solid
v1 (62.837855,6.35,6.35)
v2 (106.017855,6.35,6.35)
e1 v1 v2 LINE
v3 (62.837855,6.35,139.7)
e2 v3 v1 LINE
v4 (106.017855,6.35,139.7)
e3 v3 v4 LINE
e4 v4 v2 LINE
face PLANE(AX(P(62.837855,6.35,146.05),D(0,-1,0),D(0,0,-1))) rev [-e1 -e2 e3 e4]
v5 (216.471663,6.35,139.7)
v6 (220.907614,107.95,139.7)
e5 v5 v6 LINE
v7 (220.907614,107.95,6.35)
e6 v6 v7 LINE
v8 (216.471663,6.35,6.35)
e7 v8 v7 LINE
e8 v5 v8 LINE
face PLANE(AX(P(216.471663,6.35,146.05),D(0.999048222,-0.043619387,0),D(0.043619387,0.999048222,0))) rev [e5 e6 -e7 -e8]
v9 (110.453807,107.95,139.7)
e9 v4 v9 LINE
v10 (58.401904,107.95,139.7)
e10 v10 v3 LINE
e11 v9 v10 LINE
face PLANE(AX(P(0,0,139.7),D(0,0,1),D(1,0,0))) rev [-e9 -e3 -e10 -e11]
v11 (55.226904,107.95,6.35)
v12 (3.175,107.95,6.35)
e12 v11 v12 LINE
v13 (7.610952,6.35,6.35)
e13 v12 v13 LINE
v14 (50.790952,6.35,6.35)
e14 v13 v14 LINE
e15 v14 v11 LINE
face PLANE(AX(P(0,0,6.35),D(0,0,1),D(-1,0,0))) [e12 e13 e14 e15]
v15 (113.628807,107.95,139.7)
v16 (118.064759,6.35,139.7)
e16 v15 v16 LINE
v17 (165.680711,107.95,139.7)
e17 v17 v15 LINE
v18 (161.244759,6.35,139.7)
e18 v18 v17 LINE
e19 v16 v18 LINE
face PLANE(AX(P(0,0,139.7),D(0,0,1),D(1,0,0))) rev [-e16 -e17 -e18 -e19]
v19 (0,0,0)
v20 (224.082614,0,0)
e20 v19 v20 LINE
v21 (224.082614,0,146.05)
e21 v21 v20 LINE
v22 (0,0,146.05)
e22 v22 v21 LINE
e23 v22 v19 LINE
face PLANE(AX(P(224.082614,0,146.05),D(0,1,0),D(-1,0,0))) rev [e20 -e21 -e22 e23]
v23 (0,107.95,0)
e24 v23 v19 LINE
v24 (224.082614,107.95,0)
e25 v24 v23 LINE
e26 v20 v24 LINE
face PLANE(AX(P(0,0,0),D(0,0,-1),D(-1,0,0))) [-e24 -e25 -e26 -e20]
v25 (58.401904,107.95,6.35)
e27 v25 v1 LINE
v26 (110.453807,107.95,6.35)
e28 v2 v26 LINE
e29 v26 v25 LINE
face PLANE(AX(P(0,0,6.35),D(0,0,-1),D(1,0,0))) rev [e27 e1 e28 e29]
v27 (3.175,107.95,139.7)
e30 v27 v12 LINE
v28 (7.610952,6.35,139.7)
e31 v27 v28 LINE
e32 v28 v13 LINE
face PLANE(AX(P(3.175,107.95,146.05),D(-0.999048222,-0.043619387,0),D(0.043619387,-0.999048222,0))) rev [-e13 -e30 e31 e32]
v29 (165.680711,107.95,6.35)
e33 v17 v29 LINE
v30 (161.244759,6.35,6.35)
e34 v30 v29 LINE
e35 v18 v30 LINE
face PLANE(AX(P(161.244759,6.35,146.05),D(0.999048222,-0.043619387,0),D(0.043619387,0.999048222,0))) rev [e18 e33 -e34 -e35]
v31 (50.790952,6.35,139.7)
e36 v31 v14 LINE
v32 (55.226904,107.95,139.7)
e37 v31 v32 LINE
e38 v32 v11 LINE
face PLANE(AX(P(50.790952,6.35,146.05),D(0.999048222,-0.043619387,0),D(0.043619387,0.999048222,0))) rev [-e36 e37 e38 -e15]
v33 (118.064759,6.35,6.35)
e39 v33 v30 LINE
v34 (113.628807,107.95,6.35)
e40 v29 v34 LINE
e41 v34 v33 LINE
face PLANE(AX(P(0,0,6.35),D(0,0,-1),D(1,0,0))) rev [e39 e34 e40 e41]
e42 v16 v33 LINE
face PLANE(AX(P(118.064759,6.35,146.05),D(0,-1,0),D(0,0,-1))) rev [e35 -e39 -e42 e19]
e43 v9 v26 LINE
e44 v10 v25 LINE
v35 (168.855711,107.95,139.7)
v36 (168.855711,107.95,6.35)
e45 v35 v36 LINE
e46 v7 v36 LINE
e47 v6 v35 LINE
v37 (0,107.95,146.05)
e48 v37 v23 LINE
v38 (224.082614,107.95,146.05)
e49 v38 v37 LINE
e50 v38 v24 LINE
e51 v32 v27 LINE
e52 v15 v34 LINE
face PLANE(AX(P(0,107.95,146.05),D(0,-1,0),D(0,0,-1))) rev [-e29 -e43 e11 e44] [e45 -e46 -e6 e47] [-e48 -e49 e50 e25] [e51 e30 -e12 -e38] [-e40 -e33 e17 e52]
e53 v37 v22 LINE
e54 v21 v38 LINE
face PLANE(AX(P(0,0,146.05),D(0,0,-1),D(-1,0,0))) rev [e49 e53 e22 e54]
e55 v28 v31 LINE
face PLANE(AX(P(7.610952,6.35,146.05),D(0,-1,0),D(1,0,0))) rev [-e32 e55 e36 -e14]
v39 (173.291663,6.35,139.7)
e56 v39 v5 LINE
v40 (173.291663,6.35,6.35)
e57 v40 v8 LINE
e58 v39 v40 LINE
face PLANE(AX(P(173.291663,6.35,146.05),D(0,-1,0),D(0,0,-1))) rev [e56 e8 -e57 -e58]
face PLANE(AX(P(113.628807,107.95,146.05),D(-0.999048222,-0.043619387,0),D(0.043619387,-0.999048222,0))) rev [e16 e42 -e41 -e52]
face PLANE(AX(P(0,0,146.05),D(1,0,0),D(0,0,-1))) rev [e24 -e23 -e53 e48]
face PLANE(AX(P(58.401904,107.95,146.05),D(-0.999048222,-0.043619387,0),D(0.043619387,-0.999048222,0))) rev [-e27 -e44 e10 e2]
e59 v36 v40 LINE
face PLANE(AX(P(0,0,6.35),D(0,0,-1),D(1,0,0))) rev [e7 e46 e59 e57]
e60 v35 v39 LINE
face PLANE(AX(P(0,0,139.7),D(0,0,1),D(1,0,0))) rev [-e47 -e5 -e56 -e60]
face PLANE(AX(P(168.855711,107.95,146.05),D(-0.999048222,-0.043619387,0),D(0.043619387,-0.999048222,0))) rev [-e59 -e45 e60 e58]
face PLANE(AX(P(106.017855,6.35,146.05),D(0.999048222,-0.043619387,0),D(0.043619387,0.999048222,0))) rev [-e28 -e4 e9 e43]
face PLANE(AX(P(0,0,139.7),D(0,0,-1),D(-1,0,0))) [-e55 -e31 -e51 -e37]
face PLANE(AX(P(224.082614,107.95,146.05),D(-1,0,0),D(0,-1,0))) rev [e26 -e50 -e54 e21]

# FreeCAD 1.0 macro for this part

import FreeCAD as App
import Part
import Sketcher

V = App.Vector
Q = App.Units.Quantity


def add_polygon(sketch, points):
    """Adds a closed chain of lines whose ends are joined by coincident constraints."""
    first, n = sketch.GeometryCount, len(points)
    for a, b in zip(points, points[1:] + points[:1]):
        sketch.addGeometry(Part.LineSegment(App.Vector(*a, 0), App.Vector(*b, 0)), False)
    for i in range(n):
        sketch.addConstraint(Sketcher.Constraint("Coincident", first + i, 2, first + (i + 1) % n, 1))

doc = App.newDocument("Part")
body = doc.addObject("PartDesign::Body", "Body")

# Sketch on XY plane
sketch1 = body.newObject("Sketcher::SketchObject", "Sketch")
sketch1.AttachmentSupport = (doc.getObject("XY_Plane"), [""])
sketch1.MapMode = "FlatFace"
add_polygon(sketch1, [(0, 108), (0, 0), (224.1, 0), (224.1, 108), (220.9, 108), (216.5, 6.3), (173.3, 6.3), (168.9, 108), (165.7, 108), (161.2, 6.3), (118.1, 6.3), (113.6, 108), (110.5, 108), (106, 6.3), (62.8, 6.3), (58.4, 108), (55.2, 108), (50.8, 6.3), (7.6, 6.3), (3.2, 108)])  # lines 0-19
sketch1.addConstraint(Sketcher.Constraint("Vertical", 0))
sketch1.addConstraint(Sketcher.Constraint("Horizontal", 1))
sketch1.addConstraint(Sketcher.Constraint("Vertical", 2))
sketch1.addConstraint(Sketcher.Constraint("Horizontal", 3))
sketch1.addConstraint(Sketcher.Constraint("Horizontal", 5))
sketch1.addConstraint(Sketcher.Constraint("Horizontal", 7))
sketch1.addConstraint(Sketcher.Constraint("Horizontal", 9))
sketch1.addConstraint(Sketcher.Constraint("Horizontal", 11))
sketch1.addConstraint(Sketcher.Constraint("Horizontal", 13))
sketch1.addConstraint(Sketcher.Constraint("Horizontal", 15))
sketch1.addConstraint(Sketcher.Constraint("Horizontal", 17))
sketch1.addConstraint(Sketcher.Constraint("Horizontal", 19))
sketch1.addConstraint(Sketcher.Constraint("Coincident", 0, 2, -1, 1))
sketch1.addConstraint(Sketcher.Constraint("Parallel", 4, 8))
sketch1.addConstraint(Sketcher.Constraint("Parallel", 6, 10))
sketch1.addConstraint(Sketcher.Constraint("Parallel", 8, 12))
sketch1.addConstraint(Sketcher.Constraint("Parallel", 10, 14))
sketch1.addConstraint(Sketcher.Constraint("Parallel", 12, 16))
sketch1.addConstraint(Sketcher.Constraint("Parallel", 14, 18))
sketch1.addConstraint(Sketcher.Constraint("Horizontal", 3, 2, 6, 2))
sketch1.addConstraint(Sketcher.Constraint("Horizontal", 5, 2, 8, 2))
sketch1.addConstraint(Sketcher.Constraint("Horizontal", 7, 2, 10, 2))
sketch1.addConstraint(Sketcher.Constraint("Horizontal", 9, 2, 12, 2))
sketch1.addConstraint(Sketcher.Constraint("Horizontal", 11, 2, 14, 2))
sketch1.addConstraint(Sketcher.Constraint("Horizontal", 13, 2, 16, 2))
sketch1.addConstraint(Sketcher.Constraint("Horizontal", 15, 2, 18, 2))
sketch1.addConstraint(Sketcher.Constraint("Equal", 3, 7))
sketch1.addConstraint(Sketcher.Constraint("Equal", 5, 9))
sketch1.addConstraint(Sketcher.Constraint("Equal", 7, 11))
sketch1.addConstraint(Sketcher.Constraint("Equal", 9, 13))
sketch1.addConstraint(Sketcher.Constraint("Equal", 11, 15))
sketch1.addConstraint(Sketcher.Constraint("Equal", 13, 17))
sketch1.addConstraint(Sketcher.Constraint("Equal", 15, 19))
sketch1.addConstraint(Sketcher.Constraint("Equal", 4, 6))
sketch1.addConstraint(Sketcher.Constraint("DistanceX", 5, 2, 5, 1, Q("1.7 in")))
sketch1.addConstraint(Sketcher.Constraint("DistanceY", 4, 2, 3, 2, Q("4 in")))
sketch1.addConstraint(Sketcher.Constraint("DistanceY", 0, 2, 0, 1, Q("4.25 in")))
sketch1.addConstraint(Sketcher.Constraint("Angle", 4, Q("-92.5 deg")))
sketch1.addConstraint(Sketcher.Constraint("DistanceX", 3, 2, 3, 1, Q("0.125 in")))
pad1 = body.newObject("PartDesign::Pad", "Pad")
pad1.Profile = sketch1
pad1.Length = Q("5.75 in")

# Sketch on XY plane
sketch2 = body.newObject("Sketcher::SketchObject", "Sketch001")
sketch2.AttachmentSupport = (doc.getObject("XY_Plane"), [""])
sketch2.MapMode = "FlatFace"
sketch2.AttachmentOffset = App.Placement(V(0, 0, 5.75 * 25.4), App.Rotation())
add_polygon(sketch2, [(55, 108), (3, 108), (8, 6), (51, 6)])  # lines 0-3
add_polygon(sketch2, [(58, 108), (63, 6), (106, 6), (110, 108)])  # lines 4-7
add_polygon(sketch2, [(114, 108), (118, 6), (161, 6), (166, 108)])  # lines 8-11
add_polygon(sketch2, [(169, 108), (173, 6), (216, 6), (221, 108)])  # lines 12-15
sketch2.addConstraint(Sketcher.Constraint("Horizontal", 0))
sketch2.addConstraint(Sketcher.Constraint("Horizontal", 2))
sketch2.addConstraint(Sketcher.Constraint("Horizontal", 5))
sketch2.addConstraint(Sketcher.Constraint("Horizontal", 7))
sketch2.addConstraint(Sketcher.Constraint("Horizontal", 9))
sketch2.addConstraint(Sketcher.Constraint("Horizontal", 11))
sketch2.addConstraint(Sketcher.Constraint("Horizontal", 13))
sketch2.addConstraint(Sketcher.Constraint("Horizontal", 15))
sketch2.addConstraint(Sketcher.Constraint("Parallel", 1, 4))
sketch2.addConstraint(Sketcher.Constraint("Parallel", 3, 6))
sketch2.addConstraint(Sketcher.Constraint("Parallel", 4, 8))
sketch2.addConstraint(Sketcher.Constraint("Parallel", 6, 10))
sketch2.addConstraint(Sketcher.Constraint("Parallel", 8, 12))
sketch2.addConstraint(Sketcher.Constraint("Parallel", 10, 14))
sketch2.addConstraint(Sketcher.Constraint("Horizontal", 2, 2, 4, 2))
sketch2.addConstraint(Sketcher.Constraint("Horizontal", 3, 2, 6, 2))
sketch2.addConstraint(Sketcher.Constraint("Horizontal", 5, 2, 8, 2))
sketch2.addConstraint(Sketcher.Constraint("Horizontal", 7, 2, 10, 2))
sketch2.addConstraint(Sketcher.Constraint("Horizontal", 9, 2, 12, 2))
sketch2.addConstraint(Sketcher.Constraint("Horizontal", 11, 2, 14, 2))
sketch2.addConstraint(Sketcher.Constraint("Equal", 2, 5))
sketch2.addConstraint(Sketcher.Constraint("Equal", 5, 9))
sketch2.addConstraint(Sketcher.Constraint("Equal", 9, 13))
sketch2.addConstraint(Sketcher.Constraint("Equal", 1, 3))
sketch2.addConstraint(Sketcher.Constraint("DistanceX", 2, 1, 2, 2, Q("1.7 in")))
sketch2.addConstraint(Sketcher.Constraint("DistanceY", 1, 2, 0, 2, Q("4 in")))
sketch2.addConstraint(Sketcher.Constraint("Angle", 1, Q("-87.5 deg")))
sketch2.addConstraint(Sketcher.Constraint("DistanceY", -1, 1, 0, 2, Q("4.25 in")))
sketch2.addConstraint(Sketcher.Constraint("DistanceX", -1, 1, 0, 2, Q("0.125 in")))
sketch2.addConstraint(Sketcher.Constraint("DistanceX", 3, 2, 7, 2, Q("0.125 in")))
sketch2.addConstraint(Sketcher.Constraint("DistanceX", 6, 2, 11, 2, Q("0.125 in")))
sketch2.addConstraint(Sketcher.Constraint("DistanceX", 10, 2, 15, 2, Q("0.125 in")))
pad2 = body.newObject("PartDesign::Pad", "Pad001")
pad2.Profile = sketch2
pad2.Length = Q("0.25 in")
pad2.Reversed = True
doc.recompute()

datumplane = body.newObject("PartDesign::Plane", "DatumPlane")
datumplane.AttachmentSupport = (doc.getObject("XY_Plane"), [""])
datumplane.MapMode = "FlatFace"
datumplane.AttachmentOffset = App.Placement(V(0, 0, 2.875 * 25.4), App.Rotation())
mirrored = body.newObject("PartDesign::Mirrored", "Mirrored")
mirrored.Originals = [pad2]
mirrored.MirrorPlane = (datumplane, [""])
body.Tip = mirrored

doc.recompute()
